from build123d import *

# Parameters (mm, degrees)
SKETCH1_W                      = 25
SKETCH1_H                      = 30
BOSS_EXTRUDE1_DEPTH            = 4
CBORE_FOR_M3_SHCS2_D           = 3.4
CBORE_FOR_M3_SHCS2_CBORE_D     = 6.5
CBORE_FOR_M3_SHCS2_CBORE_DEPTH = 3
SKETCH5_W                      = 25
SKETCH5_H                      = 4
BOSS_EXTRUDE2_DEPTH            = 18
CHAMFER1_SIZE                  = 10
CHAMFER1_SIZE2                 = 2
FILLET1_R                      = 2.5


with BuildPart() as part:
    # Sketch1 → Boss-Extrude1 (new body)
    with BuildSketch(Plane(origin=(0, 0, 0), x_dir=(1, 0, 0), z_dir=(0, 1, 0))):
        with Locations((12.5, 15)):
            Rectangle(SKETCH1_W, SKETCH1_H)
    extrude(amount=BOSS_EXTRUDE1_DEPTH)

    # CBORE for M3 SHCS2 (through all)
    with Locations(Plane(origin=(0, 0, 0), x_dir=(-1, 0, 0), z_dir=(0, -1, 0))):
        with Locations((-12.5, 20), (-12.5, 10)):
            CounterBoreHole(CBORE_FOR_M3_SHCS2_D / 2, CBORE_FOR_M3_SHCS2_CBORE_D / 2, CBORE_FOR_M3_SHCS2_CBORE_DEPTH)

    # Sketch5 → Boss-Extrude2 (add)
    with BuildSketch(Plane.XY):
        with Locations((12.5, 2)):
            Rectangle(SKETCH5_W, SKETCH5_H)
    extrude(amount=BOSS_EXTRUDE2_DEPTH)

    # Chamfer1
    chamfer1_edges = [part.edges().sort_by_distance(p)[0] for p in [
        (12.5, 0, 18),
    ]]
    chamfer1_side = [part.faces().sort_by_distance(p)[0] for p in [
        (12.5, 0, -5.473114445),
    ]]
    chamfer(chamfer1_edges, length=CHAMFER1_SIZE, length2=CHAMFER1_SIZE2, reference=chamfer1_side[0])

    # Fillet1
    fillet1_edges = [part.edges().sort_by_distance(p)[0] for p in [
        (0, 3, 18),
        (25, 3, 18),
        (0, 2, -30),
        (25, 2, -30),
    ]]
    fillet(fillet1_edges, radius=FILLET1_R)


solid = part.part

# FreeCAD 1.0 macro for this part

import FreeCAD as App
import Part
import Sketcher

V = App.Vector
Q = App.Units.Quantity


def edges_at(feature, points):
    """Names of the edges that pass closest to the given points."""
    edges = feature.Shape.Edges
    near = lambda p: min(range(len(edges)), key=lambda i: edges[i].distToShape(Part.Vertex(*p))[0])
    return sorted({f"Edge{near(p) + 1}" for p in points})


def add_polygon(sketch, points):
    """Adds a closed chain of lines whose ends are joined by coincident constraints."""
    first, n = sketch.GeometryCount, len(points)
    for a, b in zip(points, points[1:] + points[:1]):
        sketch.addGeometry(Part.LineSegment(App.Vector(*a, 0), App.Vector(*b, 0)), False)
    for i in range(n):
        sketch.addConstraint(Sketcher.Constraint("Coincident", first + i, 2, first + (i + 1) % n, 1))

doc = App.newDocument("Part")
body = doc.addObject("PartDesign::Body", "Body")

sketch1 = body.newObject("Sketcher::SketchObject", "Sketch")
sketch1.AttachmentSupport = (doc.getObject("XZ_Plane"), [""])
sketch1.MapMode = "FlatFace"
add_polygon(sketch1, [(0, -30), (0, 0), (25, 0), (25, -30)])
sketch1.addConstraint([
    Sketcher.Constraint("Vertical", 0),
    Sketcher.Constraint("Horizontal", 1),
    Sketcher.Constraint("Vertical", 2),
    Sketcher.Constraint("Horizontal", 3),
    Sketcher.Constraint("Coincident", 0, 2, -1, 1),
    Sketcher.Constraint("DistanceX", 1, 1, 1, 2, Q("25 mm")),
    Sketcher.Constraint("DistanceY", 0, 1, 0, 2, Q("30 mm")),
])
pad1 = body.newObject("PartDesign::Pad", "Pad")
pad1.Profile = sketch1
pad1.Length = 4
pad1.Reversed = True

sketch2 = body.newObject("Sketcher::SketchObject", "Sketch001")
sketch2.AttachmentSupport = (doc.getObject("XZ_Plane"), [""])
sketch2.MapMode = "FlatFace"
sketch2.addGeometry([
    Part.Circle(V(12.5, -20, 0), V(0, 0, 1), 1.7),
    Part.Circle(V(12.5, -10, 0), V(0, 0, 1), 1.7),
], False)
sketch2.addConstraint([
    Sketcher.Constraint("Equal", 0, 1),
    Sketcher.Constraint("Vertical", 0, 3, 1, 3),
    Sketcher.Constraint("Diameter", 0, Q("3.4 mm")),
    Sketcher.Constraint("DistanceY", 0, 3, -1, 1, Q("20 mm")),
    Sketcher.Constraint("DistanceY", 1, 3, -1, 1, Q("10 mm")),
    Sketcher.Constraint("DistanceX", -1, 1, 0, 3, Q("12.5 mm")),
])
doc.recompute()
hole = body.newObject("PartDesign::Hole", "Hole")
hole.Profile = sketch2
hole.ThreadType = "None"
hole.Diameter = 3.4
hole.DepthType = "ThroughAll"
hole.HoleCutType = "Counterbore"
hole.HoleCutDiameter = 6.5
hole.HoleCutDepth = 3

sketch3 = body.newObject("Sketcher::SketchObject", "Sketch002")
sketch3.AttachmentSupport = (doc.getObject("XY_Plane"), [""])
sketch3.MapMode = "FlatFace"
add_polygon(sketch3, [(0, 4), (0, 0), (25, 0), (25, 4)])
sketch3.addConstraint([
    Sketcher.Constraint("Vertical", 0),
    Sketcher.Constraint("Horizontal", 1),
    Sketcher.Constraint("Vertical", 2),
    Sketcher.Constraint("Horizontal", 3),
    Sketcher.Constraint("Coincident", 0, 2, -1, 1),
    Sketcher.Constraint("DistanceX", 1, 1, 1, 2, Q("25 mm")),
    Sketcher.Constraint("DistanceY", 0, 2, 0, 1, Q("4 mm")),
])
pad2 = body.newObject("PartDesign::Pad", "Pad001")
pad2.Profile = sketch3
pad2.Length = 18
doc.recompute()

chamfer = body.newObject("PartDesign::Chamfer", "Chamfer")
chamfer.Base = (pad2, edges_at(pad2, [(12.5, 0, 18)]))
chamfer.ChamferType = "Two distances"
chamfer.Size = 10
chamfer.Size2 = 2
chamfer.FlipDirection = True
doc.recompute()

fillet = body.newObject("PartDesign::Fillet", "Fillet")
fillet.Base = (chamfer, edges_at(chamfer, [
    (0, 3, 18),
    (25, 3, 18),
    (0, 2, -30),
    (25, 2, -30),
]))
fillet.Radius = 2.5

doc.recompute()
